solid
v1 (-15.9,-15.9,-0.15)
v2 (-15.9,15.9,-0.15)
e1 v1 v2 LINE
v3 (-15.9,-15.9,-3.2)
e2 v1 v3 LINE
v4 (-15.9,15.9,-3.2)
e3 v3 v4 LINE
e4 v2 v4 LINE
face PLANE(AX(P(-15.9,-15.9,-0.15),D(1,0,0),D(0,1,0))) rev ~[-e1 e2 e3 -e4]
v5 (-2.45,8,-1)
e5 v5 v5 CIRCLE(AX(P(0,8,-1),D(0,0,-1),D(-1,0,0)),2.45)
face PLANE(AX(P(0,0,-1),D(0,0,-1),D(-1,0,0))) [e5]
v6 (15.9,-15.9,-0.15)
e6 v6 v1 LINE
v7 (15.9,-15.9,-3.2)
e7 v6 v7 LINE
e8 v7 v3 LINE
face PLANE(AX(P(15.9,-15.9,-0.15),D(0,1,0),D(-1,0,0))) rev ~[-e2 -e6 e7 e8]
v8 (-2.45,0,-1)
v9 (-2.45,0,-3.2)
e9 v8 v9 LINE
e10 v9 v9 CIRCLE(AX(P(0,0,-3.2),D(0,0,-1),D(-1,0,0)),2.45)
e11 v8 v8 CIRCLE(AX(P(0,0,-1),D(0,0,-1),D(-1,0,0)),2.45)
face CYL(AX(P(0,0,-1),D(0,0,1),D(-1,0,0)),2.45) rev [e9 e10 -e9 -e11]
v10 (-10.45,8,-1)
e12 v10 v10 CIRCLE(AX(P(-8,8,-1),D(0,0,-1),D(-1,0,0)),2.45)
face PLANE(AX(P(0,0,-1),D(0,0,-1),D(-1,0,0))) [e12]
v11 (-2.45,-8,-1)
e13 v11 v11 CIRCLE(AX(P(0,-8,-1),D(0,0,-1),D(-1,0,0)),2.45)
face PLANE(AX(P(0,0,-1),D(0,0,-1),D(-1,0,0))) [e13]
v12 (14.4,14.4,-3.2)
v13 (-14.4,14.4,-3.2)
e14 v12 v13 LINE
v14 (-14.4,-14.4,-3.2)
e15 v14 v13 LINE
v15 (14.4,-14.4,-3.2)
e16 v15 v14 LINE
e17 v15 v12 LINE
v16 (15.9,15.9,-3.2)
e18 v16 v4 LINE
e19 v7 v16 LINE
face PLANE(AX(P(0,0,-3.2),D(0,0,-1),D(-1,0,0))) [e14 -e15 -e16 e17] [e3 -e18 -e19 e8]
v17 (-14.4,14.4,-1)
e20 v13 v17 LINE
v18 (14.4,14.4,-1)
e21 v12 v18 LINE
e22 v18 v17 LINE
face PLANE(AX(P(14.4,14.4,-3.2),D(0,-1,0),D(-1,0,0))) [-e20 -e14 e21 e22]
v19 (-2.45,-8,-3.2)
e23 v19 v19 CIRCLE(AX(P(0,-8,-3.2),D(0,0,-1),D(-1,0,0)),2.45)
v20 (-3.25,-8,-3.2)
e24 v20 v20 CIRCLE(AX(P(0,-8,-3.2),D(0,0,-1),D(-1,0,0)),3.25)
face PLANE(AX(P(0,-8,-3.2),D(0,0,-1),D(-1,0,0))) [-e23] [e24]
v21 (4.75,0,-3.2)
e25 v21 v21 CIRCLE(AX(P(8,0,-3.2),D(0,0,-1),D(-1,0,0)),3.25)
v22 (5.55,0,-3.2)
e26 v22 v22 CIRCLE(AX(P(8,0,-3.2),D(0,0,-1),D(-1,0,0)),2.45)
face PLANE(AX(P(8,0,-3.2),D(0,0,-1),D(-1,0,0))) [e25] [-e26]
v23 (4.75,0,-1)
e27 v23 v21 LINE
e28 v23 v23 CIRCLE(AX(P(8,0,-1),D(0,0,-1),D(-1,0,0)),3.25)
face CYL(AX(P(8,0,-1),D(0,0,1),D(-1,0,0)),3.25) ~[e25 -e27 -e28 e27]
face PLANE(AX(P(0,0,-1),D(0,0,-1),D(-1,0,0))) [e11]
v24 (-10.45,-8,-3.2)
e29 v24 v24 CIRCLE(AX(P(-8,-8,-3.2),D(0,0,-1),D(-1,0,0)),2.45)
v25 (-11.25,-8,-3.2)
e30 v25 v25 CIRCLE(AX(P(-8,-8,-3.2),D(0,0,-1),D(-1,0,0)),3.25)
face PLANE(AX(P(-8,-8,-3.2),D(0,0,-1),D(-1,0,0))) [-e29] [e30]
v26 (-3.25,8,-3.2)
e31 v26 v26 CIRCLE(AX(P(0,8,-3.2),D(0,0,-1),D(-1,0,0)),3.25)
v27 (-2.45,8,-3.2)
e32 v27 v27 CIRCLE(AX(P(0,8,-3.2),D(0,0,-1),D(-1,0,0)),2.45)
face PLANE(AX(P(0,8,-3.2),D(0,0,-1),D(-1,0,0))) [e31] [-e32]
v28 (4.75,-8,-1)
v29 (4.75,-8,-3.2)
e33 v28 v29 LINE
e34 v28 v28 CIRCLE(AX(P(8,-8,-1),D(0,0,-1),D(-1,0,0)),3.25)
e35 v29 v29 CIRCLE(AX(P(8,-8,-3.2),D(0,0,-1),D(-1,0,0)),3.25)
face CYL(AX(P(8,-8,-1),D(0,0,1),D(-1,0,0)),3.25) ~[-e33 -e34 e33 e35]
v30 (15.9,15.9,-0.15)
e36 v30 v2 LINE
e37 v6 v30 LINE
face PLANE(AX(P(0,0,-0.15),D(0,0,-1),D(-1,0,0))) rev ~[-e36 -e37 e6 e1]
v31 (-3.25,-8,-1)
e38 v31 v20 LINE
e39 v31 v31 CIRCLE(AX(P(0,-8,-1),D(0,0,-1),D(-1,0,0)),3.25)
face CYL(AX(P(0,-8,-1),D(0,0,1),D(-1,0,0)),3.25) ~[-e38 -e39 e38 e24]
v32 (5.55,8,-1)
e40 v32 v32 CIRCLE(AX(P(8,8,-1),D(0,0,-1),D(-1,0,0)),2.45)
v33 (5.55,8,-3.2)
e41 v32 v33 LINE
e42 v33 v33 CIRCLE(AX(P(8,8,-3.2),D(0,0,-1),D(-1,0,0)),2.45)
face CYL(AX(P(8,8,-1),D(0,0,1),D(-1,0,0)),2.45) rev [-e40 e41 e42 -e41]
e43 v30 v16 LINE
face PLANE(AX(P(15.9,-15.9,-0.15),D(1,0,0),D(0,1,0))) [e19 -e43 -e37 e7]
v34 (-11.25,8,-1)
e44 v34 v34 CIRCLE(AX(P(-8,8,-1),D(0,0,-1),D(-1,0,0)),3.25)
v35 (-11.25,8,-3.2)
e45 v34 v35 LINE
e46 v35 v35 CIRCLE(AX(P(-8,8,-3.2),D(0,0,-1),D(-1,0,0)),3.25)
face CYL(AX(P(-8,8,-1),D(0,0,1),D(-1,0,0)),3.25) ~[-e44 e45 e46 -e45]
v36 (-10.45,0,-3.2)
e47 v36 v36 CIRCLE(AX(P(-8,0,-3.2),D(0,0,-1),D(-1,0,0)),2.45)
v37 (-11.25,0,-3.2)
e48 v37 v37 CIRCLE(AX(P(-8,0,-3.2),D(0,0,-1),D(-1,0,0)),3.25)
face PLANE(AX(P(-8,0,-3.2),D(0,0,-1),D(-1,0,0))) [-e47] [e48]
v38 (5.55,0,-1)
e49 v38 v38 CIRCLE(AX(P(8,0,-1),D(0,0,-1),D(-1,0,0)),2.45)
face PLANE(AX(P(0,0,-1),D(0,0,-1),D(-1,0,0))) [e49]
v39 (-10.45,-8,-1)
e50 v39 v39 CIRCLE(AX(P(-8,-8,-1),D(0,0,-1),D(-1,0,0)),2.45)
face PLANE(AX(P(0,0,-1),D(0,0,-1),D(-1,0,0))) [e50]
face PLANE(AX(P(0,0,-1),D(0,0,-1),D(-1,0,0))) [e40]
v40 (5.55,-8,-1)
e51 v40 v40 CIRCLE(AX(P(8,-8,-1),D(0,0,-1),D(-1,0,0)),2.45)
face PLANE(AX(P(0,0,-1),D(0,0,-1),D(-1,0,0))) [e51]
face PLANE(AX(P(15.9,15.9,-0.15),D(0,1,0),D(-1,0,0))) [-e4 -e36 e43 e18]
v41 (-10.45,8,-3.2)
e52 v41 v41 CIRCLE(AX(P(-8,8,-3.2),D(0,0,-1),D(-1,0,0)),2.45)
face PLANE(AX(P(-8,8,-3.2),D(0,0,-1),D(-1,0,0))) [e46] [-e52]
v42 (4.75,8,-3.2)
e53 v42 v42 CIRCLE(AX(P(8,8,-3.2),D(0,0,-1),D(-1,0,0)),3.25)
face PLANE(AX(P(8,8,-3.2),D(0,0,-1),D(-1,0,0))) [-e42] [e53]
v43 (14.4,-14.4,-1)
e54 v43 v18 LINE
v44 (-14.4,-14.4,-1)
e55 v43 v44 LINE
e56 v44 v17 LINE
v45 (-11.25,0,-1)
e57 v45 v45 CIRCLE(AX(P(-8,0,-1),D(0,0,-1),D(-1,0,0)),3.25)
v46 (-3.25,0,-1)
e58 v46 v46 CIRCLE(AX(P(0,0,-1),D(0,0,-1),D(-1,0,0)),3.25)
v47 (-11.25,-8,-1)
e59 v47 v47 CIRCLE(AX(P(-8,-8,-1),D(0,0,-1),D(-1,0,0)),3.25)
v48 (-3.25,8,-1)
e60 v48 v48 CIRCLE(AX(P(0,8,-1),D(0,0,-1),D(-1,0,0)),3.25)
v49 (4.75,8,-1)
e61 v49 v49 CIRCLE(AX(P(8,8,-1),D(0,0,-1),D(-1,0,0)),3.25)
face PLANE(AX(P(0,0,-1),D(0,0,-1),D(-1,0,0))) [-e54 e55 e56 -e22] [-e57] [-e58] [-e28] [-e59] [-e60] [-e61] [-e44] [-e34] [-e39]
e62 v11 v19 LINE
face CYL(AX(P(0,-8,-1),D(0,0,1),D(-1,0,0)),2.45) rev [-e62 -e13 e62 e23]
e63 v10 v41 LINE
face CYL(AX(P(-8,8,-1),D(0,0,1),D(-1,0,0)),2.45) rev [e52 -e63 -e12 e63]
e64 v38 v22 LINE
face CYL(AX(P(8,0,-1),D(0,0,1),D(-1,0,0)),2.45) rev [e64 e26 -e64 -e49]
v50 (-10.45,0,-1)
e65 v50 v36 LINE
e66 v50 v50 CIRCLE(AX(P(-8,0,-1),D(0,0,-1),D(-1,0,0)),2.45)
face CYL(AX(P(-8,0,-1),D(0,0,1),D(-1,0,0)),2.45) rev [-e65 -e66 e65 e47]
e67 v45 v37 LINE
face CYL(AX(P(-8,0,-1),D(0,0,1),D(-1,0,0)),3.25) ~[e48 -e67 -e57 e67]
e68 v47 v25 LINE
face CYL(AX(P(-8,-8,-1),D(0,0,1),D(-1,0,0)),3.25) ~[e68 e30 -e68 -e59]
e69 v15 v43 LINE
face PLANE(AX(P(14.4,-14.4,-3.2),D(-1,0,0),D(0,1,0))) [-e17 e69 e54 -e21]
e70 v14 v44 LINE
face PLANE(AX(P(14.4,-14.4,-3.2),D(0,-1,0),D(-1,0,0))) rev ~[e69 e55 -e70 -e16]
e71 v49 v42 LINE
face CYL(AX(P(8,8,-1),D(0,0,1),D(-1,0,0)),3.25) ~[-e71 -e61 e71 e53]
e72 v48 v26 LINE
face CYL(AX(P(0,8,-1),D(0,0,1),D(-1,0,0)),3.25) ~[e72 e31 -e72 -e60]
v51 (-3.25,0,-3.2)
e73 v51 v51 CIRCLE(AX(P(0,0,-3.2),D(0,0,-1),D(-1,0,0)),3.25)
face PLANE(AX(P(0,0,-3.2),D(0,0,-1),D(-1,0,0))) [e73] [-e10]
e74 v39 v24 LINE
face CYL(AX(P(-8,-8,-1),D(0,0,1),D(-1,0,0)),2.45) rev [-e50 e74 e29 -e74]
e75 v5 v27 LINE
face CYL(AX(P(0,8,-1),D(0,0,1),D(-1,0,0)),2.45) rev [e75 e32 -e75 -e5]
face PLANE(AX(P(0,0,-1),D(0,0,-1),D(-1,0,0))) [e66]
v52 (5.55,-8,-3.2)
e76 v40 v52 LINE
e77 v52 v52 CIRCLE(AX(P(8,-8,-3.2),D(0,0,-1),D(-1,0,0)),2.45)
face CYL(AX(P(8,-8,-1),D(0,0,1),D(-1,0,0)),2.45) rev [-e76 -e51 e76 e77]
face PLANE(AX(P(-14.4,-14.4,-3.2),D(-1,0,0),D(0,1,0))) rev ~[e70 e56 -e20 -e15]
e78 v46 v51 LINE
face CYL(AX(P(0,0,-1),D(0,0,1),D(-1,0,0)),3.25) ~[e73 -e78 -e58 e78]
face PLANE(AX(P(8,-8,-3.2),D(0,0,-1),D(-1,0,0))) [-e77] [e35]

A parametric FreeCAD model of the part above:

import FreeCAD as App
import Part
import Sketcher
from FreeCAD import Vector


def add_polygon(sketch, points):
    """Adds a closed chain of lines whose ends are joined by coincident constraints."""
    first, n = sketch.GeometryCount, len(points)
    for a, b in zip(points, points[1:] + points[:1]):
        sketch.addGeometry(Part.LineSegment(App.Vector(*a, 0), App.Vector(*b, 0)), False)
    for i in range(n):
        sketch.addConstraint(Sketcher.Constraint("Coincident", first + i, 2, first + (i + 1) % n, 1))

doc = App.newDocument("Part")
params = doc.addObject("Spreadsheet::Sheet", "Params")
for row, (alias, value) in enumerate([
    ("sketch1_width", "31.8 mm"),
    ("pad1_length", "3.05 mm"),
    ("sketch2_width", "28.8 mm"),
    ("pocket1_length", "2.2 mm"),
    ("sketch3_diameter", "6.5 mm"),
    ("sketch3_diameter2", "4.9 mm"),
    ("pad2_length", "2.2 mm"),
    ("sketch4_diameter", "6.5 mm"),
    ("sketch4_diameter2", "4.9 mm"),
    ("pad3_length", "2.2 mm"),
    ("sketch5_diameter", "6.5 mm"),
    ("sketch5_diameter2", "4.9 mm"),
    ("pad4_length", "2.2 mm"),
    ("linearpattern_pitch", "8 mm"),
], start=1):
    params.set(f"A{row}", alias)
    params.set(f"B{row}", "=" + value)
    params.setAlias(f"B{row}", alias)

body = doc.addObject("PartDesign::Body", "Body")

sketch1 = body.newObject("Sketcher::SketchObject", "Sketch")
sketch1.AttachmentSupport = (doc.getObject("XY_Plane"), [""])
sketch1.MapMode = "FlatFace"
add_polygon(sketch1, [(-16, 16), (-16, -16), (16, -16), (16, 16)])
sketch1.addConstraint(Sketcher.Constraint("Vertical", 0))
sketch1.addConstraint(Sketcher.Constraint("Horizontal", 1))
sketch1.addConstraint(Sketcher.Constraint("Vertical", 2))
sketch1.addConstraint(Sketcher.Constraint("Horizontal", 3))
sketch1.addConstraint(Sketcher.Constraint("Symmetric", 0, 2, 2, 2, -1, 1))
sketch1.addConstraint(Sketcher.Constraint("Equal", 3, 0))
sketch1.addConstraint(Sketcher.Constraint("DistanceX", 1, 1, 1, 2, 31.8))
sketch1.setExpression("Constraints[10]", "Params.sketch1_width")
pad1 = body.newObject("PartDesign::Pad", "Pad")
pad1.Profile = sketch1
pad1.setExpression("Length", "Params.pad1_length")

sketch2 = body.newObject("Sketcher::SketchObject", "Sketch001")
sketch2.AttachmentSupport = (doc.getObject("XY_Plane"), [""])
sketch2.MapMode = "FlatFace"
sketch2.AttachmentOffset = App.Placement(Vector(0, 0, 3.05), App.Rotation())
add_polygon(sketch2, [(-14, 14), (-14, -14), (14, -14), (14, 14)])
sketch2.addConstraint(Sketcher.Constraint("Vertical", 0))
sketch2.addConstraint(Sketcher.Constraint("Horizontal", 1))
sketch2.addConstraint(Sketcher.Constraint("Vertical", 2))
sketch2.addConstraint(Sketcher.Constraint("Horizontal", 3))
sketch2.addConstraint(Sketcher.Constraint("Symmetric", 0, 2, 2, 2, -1, 1))
sketch2.addConstraint(Sketcher.Constraint("Equal", 3, 0))
sketch2.addConstraint(Sketcher.Constraint("DistanceX", 1, 1, 1, 2, 28.8))
sketch2.setExpression("Constraints[10]", "Params.sketch2_width")
pocket1 = body.newObject("PartDesign::Pocket", "Pocket")
pocket1.Profile = sketch2
pocket1.setExpression("Length", "Params.pocket1_length")

sketch3 = body.newObject("Sketcher::SketchObject", "Sketch002")
sketch3.AttachmentSupport = (doc.getObject("XY_Plane"), [""])
sketch3.MapMode = "FlatFace"
sketch3.AttachmentOffset = App.Placement(Vector(0, 0, 0.85), App.Rotation())
sketch3.addGeometry(Part.Circle(Vector(8, 8, 0), Vector(0, 0, 1), 3.2), False)
sketch3.addGeometry(Part.Circle(Vector(8, 8, 0), Vector(0, 0, 1), 2.5), False)
sketch3.addConstraint(Sketcher.Constraint("Coincident", 1, 3, 0, 3))
sketch3.addConstraint(Sketcher.Constraint("Diameter", 0, 6.5))
sketch3.addConstraint(Sketcher.Constraint("Diameter", 1, 4.9))
sketch3.addConstraint(Sketcher.Constraint("DistanceX", -1, 1, 0, 3, 8.0))
sketch3.addConstraint(Sketcher.Constraint("DistanceY", -1, 1, 0, 3, 8.0))
sketch3.setExpression("Constraints[1]", "Params.sketch3_diameter")
sketch3.setExpression("Constraints[2]", "Params.sketch3_diameter2")
pad2 = body.newObject("PartDesign::Pad", "Pad001")
pad2.Profile = sketch3
pad2.setExpression("Length", "Params.pad2_length")

sketch4 = body.newObject("Sketcher::SketchObject", "Sketch003")
sketch4.AttachmentSupport = (doc.getObject("XY_Plane"), [""])
sketch4.MapMode = "FlatFace"
sketch4.AttachmentOffset = App.Placement(Vector(0, 0, 0.85), App.Rotation())
sketch4.addGeometry(Part.Circle(Vector(0, 8, 0), Vector(0, 0, 1), 3.2), False)
sketch4.addGeometry(Part.Circle(Vector(0, 8, 0), Vector(0, 0, 1), 2.5), False)
sketch4.addConstraint(Sketcher.Constraint("Coincident", 1, 3, 0, 3))
sketch4.addConstraint(Sketcher.Constraint("PointOnObject", 0, 3, -2))
sketch4.addConstraint(Sketcher.Constraint("Diameter", 0, 6.5))
sketch4.addConstraint(Sketcher.Constraint("Diameter", 1, 4.9))
sketch4.addConstraint(Sketcher.Constraint("DistanceY", -1, 1, 0, 3, 8.0))
sketch4.setExpression("Constraints[2]", "Params.sketch4_diameter")
sketch4.setExpression("Constraints[3]", "Params.sketch4_diameter2")
pad3 = body.newObject("PartDesign::Pad", "Pad002")
pad3.Profile = sketch4
pad3.setExpression("Length", "Params.pad3_length")

sketch5 = body.newObject("Sketcher::SketchObject", "Sketch004")
sketch5.AttachmentSupport = (doc.getObject("XY_Plane"), [""])
sketch5.MapMode = "FlatFace"
sketch5.AttachmentOffset = App.Placement(Vector(0, 0, 0.85), App.Rotation())
sketch5.addGeometry(Part.Circle(Vector(-8, 8, 0), Vector(0, 0, 1), 3.2), False)
sketch5.addGeometry(Part.Circle(Vector(-8, 8, 0), Vector(0, 0, 1), 2.5), False)
sketch5.addConstraint(Sketcher.Constraint("Coincident", 1, 3, 0, 3))
sketch5.addConstraint(Sketcher.Constraint("Diameter", 0, 6.5))
sketch5.addConstraint(Sketcher.Constraint("Diameter", 1, 4.9))
sketch5.addConstraint(Sketcher.Constraint("DistanceX", 0, 3, -1, 1, 8.0))
sketch5.addConstraint(Sketcher.Constraint("DistanceY", -1, 1, 0, 3, 8.0))
sketch5.setExpression("Constraints[1]", "Params.sketch5_diameter")
sketch5.setExpression("Constraints[2]", "Params.sketch5_diameter2")
pad4 = body.newObject("PartDesign::Pad", "Pad003")
pad4.Profile = sketch5
pad4.setExpression("Length", "Params.pad4_length")
doc.recompute()

linearpattern = body.newObject("PartDesign::LinearPattern", "LinearPattern")
linearpattern.Originals = [pad2, pad3, pad4]
linearpattern.Direction = (doc.getObject("Y_Axis"), [""])
linearpattern.Mode = "offset"
linearpattern.setExpression("Offset", "Params.linearpattern_pitch")
linearpattern.Occurrences = 3
linearpattern.Reversed = True
body.Tip = linearpattern
body2 = doc.addObject("PartDesign::Body", "Body001")
doc.recompute()

body.Placement = App.Placement(Vector(0, 0, -0.15), App.Rotation(Vector(0, 1, 0), 180))
boolean = body2.newObject("PartDesign::Boolean", "Boolean")
boolean.Type = "Fuse"
boolean.addObjects([body])

doc.recompute()
